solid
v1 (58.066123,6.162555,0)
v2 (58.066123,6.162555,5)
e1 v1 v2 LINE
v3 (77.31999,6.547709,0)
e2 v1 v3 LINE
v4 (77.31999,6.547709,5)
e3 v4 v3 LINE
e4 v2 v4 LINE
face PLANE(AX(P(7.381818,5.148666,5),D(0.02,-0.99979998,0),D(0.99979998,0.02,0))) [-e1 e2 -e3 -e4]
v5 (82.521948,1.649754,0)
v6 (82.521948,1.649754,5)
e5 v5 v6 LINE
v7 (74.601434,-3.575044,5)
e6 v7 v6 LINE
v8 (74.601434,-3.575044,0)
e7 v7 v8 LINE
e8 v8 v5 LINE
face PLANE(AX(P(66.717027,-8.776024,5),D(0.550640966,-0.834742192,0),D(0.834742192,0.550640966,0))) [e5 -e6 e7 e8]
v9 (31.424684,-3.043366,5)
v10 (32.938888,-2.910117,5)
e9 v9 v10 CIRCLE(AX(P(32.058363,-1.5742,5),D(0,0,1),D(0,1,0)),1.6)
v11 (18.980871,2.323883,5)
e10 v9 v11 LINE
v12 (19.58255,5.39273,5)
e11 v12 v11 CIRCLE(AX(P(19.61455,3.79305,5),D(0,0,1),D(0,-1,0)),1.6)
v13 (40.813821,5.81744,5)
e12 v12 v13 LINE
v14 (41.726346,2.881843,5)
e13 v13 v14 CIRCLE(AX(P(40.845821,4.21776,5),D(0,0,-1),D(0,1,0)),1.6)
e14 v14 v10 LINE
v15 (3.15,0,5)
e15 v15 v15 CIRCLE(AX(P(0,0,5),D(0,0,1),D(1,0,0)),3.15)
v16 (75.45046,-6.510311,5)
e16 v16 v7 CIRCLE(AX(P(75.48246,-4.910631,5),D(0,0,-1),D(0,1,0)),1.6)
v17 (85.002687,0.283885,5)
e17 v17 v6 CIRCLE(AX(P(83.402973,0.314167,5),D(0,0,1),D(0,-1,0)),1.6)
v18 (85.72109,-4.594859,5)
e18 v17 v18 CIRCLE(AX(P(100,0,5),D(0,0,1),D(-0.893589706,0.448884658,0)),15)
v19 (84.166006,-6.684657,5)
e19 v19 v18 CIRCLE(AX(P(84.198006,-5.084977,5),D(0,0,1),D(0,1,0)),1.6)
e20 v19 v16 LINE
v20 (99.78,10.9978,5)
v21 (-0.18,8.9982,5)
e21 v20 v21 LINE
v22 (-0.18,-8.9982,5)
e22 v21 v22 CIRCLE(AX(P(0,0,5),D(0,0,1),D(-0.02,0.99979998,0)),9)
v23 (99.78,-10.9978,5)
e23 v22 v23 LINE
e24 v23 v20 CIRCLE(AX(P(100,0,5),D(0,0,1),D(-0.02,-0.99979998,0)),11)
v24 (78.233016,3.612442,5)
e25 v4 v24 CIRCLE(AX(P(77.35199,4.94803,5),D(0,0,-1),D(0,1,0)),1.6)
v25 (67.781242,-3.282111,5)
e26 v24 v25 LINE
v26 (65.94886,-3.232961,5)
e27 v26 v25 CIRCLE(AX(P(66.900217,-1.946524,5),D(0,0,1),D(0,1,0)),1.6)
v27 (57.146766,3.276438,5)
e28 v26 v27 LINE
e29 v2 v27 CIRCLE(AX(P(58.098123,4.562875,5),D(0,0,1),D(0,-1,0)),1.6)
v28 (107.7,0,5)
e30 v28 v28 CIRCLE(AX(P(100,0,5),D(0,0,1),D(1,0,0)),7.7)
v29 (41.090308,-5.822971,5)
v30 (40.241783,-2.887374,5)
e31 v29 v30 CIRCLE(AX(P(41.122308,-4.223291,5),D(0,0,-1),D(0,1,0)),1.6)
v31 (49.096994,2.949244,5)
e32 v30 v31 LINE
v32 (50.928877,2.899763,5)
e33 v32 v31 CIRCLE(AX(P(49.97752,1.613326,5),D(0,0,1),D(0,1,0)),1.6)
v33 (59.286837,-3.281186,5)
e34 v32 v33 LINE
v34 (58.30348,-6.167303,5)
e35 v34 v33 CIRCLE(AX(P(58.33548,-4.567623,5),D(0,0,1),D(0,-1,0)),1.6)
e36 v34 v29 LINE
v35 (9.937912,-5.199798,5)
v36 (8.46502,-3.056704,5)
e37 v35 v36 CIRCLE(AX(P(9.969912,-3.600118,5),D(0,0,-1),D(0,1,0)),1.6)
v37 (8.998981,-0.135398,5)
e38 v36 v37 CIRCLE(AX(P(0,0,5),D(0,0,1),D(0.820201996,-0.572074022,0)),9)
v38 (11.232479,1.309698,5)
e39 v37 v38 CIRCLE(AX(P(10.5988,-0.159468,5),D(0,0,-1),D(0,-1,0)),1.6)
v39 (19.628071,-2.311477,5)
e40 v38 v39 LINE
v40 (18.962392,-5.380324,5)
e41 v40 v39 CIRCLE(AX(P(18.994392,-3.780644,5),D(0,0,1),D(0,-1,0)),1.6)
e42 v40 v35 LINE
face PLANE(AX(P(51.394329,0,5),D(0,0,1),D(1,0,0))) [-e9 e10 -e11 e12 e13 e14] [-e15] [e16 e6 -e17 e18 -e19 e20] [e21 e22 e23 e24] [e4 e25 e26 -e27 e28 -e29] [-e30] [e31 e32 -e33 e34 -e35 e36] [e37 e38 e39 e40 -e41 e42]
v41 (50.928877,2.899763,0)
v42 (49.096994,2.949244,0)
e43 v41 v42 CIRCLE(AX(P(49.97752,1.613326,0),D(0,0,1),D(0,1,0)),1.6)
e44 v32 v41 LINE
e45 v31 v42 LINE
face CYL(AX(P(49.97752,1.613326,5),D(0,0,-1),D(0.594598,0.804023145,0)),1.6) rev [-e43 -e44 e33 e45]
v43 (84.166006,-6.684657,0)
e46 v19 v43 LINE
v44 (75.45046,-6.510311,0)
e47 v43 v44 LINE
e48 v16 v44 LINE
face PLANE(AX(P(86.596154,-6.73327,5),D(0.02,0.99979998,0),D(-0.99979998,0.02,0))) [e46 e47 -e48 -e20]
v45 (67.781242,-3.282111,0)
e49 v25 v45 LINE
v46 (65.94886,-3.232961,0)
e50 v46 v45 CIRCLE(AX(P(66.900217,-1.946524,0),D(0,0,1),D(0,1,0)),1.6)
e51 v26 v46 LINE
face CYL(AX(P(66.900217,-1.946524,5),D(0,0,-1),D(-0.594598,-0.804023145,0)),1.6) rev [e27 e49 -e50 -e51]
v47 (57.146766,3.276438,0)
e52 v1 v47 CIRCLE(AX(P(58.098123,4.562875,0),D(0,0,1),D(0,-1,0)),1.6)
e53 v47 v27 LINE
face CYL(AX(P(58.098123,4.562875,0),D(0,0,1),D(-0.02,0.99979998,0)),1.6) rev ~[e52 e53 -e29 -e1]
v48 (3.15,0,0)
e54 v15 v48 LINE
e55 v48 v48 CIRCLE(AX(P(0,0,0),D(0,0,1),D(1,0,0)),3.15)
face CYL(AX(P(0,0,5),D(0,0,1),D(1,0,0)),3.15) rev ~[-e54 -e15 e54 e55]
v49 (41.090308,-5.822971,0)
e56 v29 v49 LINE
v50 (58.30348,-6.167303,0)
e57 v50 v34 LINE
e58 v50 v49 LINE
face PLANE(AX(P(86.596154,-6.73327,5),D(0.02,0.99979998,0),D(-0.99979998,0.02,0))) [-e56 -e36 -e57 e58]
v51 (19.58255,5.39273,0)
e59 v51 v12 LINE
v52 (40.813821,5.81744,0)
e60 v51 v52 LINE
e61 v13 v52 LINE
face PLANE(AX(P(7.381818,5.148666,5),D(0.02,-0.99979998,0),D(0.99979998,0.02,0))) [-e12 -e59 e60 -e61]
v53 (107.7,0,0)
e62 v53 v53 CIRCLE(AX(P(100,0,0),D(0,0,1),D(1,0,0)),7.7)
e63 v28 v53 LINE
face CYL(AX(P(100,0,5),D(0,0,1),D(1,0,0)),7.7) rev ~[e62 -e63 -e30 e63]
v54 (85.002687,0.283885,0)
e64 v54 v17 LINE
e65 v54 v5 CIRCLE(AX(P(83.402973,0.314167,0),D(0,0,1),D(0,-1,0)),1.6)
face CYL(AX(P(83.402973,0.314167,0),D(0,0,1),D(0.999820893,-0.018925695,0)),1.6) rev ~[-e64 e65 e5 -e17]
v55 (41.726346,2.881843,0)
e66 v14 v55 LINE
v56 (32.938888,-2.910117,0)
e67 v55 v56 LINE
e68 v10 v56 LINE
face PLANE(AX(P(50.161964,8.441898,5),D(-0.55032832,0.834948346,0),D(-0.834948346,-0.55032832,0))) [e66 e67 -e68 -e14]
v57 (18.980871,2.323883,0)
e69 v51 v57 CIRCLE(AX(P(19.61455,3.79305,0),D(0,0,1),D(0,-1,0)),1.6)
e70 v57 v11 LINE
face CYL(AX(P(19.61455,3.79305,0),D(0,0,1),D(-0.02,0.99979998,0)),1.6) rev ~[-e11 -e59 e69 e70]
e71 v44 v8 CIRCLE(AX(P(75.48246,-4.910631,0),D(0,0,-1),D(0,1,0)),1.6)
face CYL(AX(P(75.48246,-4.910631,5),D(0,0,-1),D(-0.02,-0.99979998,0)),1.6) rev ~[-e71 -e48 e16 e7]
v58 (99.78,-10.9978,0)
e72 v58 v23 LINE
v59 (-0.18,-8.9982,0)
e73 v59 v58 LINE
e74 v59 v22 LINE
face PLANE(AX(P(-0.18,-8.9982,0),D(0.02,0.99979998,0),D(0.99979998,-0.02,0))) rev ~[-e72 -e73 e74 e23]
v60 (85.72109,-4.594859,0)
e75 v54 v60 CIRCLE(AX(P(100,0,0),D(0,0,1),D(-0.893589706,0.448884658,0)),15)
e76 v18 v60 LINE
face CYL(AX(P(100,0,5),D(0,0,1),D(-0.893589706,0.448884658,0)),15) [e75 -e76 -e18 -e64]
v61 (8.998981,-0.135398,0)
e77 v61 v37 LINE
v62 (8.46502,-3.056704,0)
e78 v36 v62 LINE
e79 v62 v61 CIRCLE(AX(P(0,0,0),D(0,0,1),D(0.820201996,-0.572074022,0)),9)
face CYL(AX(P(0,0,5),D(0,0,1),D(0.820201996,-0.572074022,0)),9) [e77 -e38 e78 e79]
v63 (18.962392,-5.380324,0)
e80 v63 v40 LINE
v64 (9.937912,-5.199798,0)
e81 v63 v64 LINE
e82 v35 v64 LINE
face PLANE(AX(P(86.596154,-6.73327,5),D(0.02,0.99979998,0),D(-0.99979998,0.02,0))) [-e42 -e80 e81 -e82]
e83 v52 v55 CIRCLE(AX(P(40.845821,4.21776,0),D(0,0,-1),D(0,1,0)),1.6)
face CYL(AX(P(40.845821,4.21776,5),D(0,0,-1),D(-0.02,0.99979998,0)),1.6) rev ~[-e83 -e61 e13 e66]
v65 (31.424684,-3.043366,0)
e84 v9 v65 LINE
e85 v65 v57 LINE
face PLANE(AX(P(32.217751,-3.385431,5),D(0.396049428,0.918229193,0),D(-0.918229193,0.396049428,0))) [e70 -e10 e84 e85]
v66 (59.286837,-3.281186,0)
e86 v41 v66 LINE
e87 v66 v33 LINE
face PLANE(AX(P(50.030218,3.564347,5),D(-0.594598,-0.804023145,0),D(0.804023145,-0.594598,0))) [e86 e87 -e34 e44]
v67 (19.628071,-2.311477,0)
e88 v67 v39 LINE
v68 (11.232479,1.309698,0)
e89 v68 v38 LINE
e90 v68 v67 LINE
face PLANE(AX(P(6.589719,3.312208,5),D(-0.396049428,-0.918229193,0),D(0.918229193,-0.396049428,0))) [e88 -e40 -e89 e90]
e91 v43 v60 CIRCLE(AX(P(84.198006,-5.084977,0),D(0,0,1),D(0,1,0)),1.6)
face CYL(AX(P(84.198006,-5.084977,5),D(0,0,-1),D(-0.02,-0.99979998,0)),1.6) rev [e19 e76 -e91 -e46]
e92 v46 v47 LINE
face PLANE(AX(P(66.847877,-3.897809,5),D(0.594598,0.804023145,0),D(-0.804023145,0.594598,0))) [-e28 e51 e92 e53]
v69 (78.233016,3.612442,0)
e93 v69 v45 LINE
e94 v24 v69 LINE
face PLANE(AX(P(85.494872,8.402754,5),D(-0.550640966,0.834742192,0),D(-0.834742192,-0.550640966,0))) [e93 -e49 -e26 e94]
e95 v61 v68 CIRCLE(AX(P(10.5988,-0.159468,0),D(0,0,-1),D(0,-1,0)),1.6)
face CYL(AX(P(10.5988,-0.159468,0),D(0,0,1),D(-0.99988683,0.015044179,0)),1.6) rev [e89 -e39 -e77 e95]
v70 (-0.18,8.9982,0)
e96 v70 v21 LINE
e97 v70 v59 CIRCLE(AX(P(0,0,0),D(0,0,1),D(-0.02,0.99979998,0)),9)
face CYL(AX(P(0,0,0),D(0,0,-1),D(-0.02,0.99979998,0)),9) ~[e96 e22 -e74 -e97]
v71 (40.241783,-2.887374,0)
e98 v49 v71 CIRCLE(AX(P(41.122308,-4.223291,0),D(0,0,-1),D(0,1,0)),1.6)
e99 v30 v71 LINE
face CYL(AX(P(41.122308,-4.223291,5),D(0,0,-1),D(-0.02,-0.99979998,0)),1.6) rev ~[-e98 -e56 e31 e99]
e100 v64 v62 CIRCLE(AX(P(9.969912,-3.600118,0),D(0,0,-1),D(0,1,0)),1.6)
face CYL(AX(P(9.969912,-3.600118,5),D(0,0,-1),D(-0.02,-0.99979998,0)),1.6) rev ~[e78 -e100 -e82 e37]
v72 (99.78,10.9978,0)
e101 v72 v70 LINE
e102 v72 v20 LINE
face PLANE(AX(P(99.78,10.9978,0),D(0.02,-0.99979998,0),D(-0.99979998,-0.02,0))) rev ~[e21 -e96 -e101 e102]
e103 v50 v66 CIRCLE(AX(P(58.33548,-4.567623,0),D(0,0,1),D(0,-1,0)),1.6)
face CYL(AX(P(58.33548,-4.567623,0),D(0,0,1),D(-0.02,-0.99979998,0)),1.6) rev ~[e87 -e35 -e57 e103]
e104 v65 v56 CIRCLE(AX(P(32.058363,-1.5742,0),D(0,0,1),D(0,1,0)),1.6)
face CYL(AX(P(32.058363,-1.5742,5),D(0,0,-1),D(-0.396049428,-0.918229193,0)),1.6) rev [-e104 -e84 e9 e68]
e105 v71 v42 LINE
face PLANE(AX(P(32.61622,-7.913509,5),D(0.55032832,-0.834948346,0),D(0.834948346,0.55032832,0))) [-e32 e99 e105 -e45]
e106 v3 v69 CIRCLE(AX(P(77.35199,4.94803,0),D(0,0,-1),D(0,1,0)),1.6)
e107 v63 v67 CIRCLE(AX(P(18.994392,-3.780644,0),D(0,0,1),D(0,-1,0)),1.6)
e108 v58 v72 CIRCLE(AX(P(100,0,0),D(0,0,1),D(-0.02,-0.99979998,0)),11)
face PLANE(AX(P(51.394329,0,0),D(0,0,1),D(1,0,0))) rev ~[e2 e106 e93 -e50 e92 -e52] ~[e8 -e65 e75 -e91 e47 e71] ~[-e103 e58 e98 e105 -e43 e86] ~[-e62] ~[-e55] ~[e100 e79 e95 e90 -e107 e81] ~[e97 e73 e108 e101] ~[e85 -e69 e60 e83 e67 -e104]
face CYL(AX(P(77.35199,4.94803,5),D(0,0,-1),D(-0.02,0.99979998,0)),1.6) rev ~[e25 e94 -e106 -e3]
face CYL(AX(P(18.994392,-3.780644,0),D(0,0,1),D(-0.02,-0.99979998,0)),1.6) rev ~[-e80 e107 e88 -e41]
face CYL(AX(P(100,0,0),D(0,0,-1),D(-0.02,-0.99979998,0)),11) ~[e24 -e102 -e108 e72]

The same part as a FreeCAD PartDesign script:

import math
import FreeCAD as App
import Part
import Sketcher
from FreeCAD import Vector
Q = App.Units.Quantity


def edges_at(feature, points):
    """Names of the edges that pass closest to the given points."""
    edges = feature.Shape.Edges
    near = lambda p: min(range(len(edges)), key=lambda i: edges[i].distToShape(Part.Vertex(*p))[0])
    return sorted({f"Edge{near(p) + 1}" for p in points})

doc = App.newDocument("Part")
body = doc.addObject("PartDesign::Body", "Body")

# Sketch on XY plane
sketch1 = body.newObject("Sketcher::SketchObject", "Sketch")
sketch1.AttachmentSupport = (doc.getObject("XY_Plane"), [""])
sketch1.MapMode = "FlatFace"
sketch1.addGeometry([
    Part.LineSegment(Vector(-0.18, -8.9982, 0), Vector(99.78, -10.9978, 0)),
    Part.ArcOfCircle(Part.Circle(Vector(100, 0, 0), Vector(0, 0, 1), 11), math.radians(-91.145992), math.radians(91.145992)),
    Part.LineSegment(Vector(99.78, 10.9978, 0), Vector(-0.18, 8.9982, 0)),
    Part.ArcOfCircle(Part.Circle(Vector(0, 0, 0), Vector(0, 0, 1), 9), math.radians(91.145992), math.radians(268.854008)),
], False)
sketch1.addConstraint([
    Sketcher.Constraint("Tangent", 0, 2, 1, 1),
    Sketcher.Constraint("Tangent", 1, 2, 2, 1),
    Sketcher.Constraint("Tangent", 2, 2, 3, 1),
    Sketcher.Constraint("Tangent", 3, 2, 0, 1),
    Sketcher.Constraint("Coincident", 3, 3, -1, 1),
    Sketcher.Constraint("PointOnObject", 1, 3, -1),
    Sketcher.Constraint("Radius", 1, Q("11 mm")),
    Sketcher.Constraint("Radius", 3, Q("9 mm")),
    Sketcher.Constraint("DistanceX", -1, 1, 1, 3, Q("100 mm")),
])
pad1 = body.newObject("PartDesign::Pad", "Pad")
pad1.Profile = sketch1
pad1.Length = 5

# Sketch on XY plane
sketch2 = body.newObject("Sketcher::SketchObject", "Sketch001")
sketch2.AttachmentSupport = (doc.getObject("XY_Plane"), [""])
sketch2.MapMode = "FlatFace"
sketch2.AttachmentOffset = App.Placement(Vector(0, 0, 5), App.Rotation())
sketch2.addGeometry(Part.Circle(Vector(0, 0, 0), Vector(0, 0, 1), 3.15), False)
sketch2.addConstraint([
    Sketcher.Constraint("Coincident", 0, 3, -1, 1),
    Sketcher.Constraint("Diameter", 0, Q("6.3 mm")),
])
pocket1 = body.newObject("PartDesign::Pocket", "Pocket")
pocket1.Profile = sketch2
pocket1.Type = "ThroughAll"

# Sketch on XY plane
sketch3 = body.newObject("Sketcher::SketchObject", "Sketch002")
sketch3.AttachmentSupport = (doc.getObject("XY_Plane"), [""])
sketch3.MapMode = "FlatFace"
sketch3.AttachmentOffset = App.Placement(Vector(0, 0, 5), App.Rotation())
sketch3.addGeometry(Part.Circle(Vector(100, 0, 0), Vector(0, 0, 1), 7.7), False)
sketch3.addConstraint([
    Sketcher.Constraint("PointOnObject", 0, 3, -1),
    Sketcher.Constraint("Diameter", 0, Q("15.4 mm")),
    Sketcher.Constraint("DistanceX", -1, 1, 0, 3, Q("100 mm")),
])
pocket2 = body.newObject("PartDesign::Pocket", "Pocket001")
pocket2.Profile = sketch3
pocket2.Type = "ThroughAll"

# Sketch on XY plane
sketch4 = body.newObject("Sketcher::SketchObject", "Sketch003")
sketch4.AttachmentSupport = (doc.getObject("XY_Plane"), [""])
sketch4.MapMode = "FlatFace"
sketch4.AttachmentOffset = App.Placement(Vector(0, 0, 5), App.Rotation())
sketch4.addGeometry([
    Part.LineSegment(Vector(86.596154, 6.73327, 0), Vector(7.381818, 5.148666, 0)),
    Part.ArcOfCircle(Part.Circle(Vector(0, 0, 0), Vector(0, 0, 1), 9), math.radians(-34.894981), math.radians(34.894981)),
    Part.LineSegment(Vector(7.381818, -5.148666, 0), Vector(86.596154, -6.73327, 0)),
    Part.ArcOfCircle(Part.Circle(Vector(100, 0, 0), Vector(0, 0, 1), 15), math.radians(153.327853), math.radians(206.672147)),
], False)
sketch4.addConstraint([
    Sketcher.Constraint("Coincident", 0, 2, 1, 2),
    Sketcher.Constraint("Coincident", 1, 1, 2, 1),
    Sketcher.Constraint("Coincident", 2, 2, 3, 2),
    Sketcher.Constraint("Coincident", 3, 1, 0, 1),
    Sketcher.Constraint("Coincident", 1, 3, -1, 1),
    Sketcher.Constraint("Symmetric", 2, 2, 3, 1, -1),
    Sketcher.Constraint("Vertical", 0, 2, 1, 1),
    Sketcher.Constraint("Radius", 1, Q("9 mm")),
    Sketcher.Constraint("Radius", 3, Q("15 mm")),
    Sketcher.Constraint("DistanceX", -1, 1, 3, 3, Q("100 mm")),
    Sketcher.Constraint("DistanceY", 2, 2, -1, 1, Q("6.73327 mm")),
    Sketcher.Constraint("Distance", 0, Q("79.230184 mm")),
])
pocket3 = body.newObject("PartDesign::Pocket", "Pocket002")
pocket3.Profile = sketch4
pocket3.Type = "ThroughAll"

# Sketch on XY plane
sketch5 = body.newObject("Sketcher::SketchObject", "Sketch004")
sketch5.AttachmentSupport = (doc.getObject("XY_Plane"), [""])
sketch5.MapMode = "FlatFace"
sketch5.AttachmentOffset = App.Placement(Vector(0, 0, 5), App.Rotation())
sketch5.addGeometry([
    Part.LineSegment(Vector(6.589719, 3.312208, 0), Vector(32.61622, -7.913509, 0)),  # 0
    Part.LineSegment(Vector(32.61622, -7.913509, 0), Vector(50.030218, 3.564347, 0)),  # 1
    Part.LineSegment(Vector(50.030218, 3.564347, 0), Vector(66.717027, -8.776024, 0)),  # 2
    Part.LineSegment(Vector(66.717027, -8.776024, 0), Vector(87.697436, 5.063785, 0)),  # 3
    Part.LineSegment(Vector(87.697436, 5.063785, 0), Vector(85.494872, 8.402754, 0)),  # 4
    Part.LineSegment(Vector(85.494872, 8.402754, 0), Vector(66.847877, -3.897809, 0)),  # 5
    Part.LineSegment(Vector(66.847877, -3.897809, 0), Vector(50.161964, 8.441898, 0)),  # 6
    Part.LineSegment(Vector(50.161964, 8.441898, 0), Vector(32.217751, -3.385431, 0)),  # 7
    Part.LineSegment(Vector(32.217751, -3.385431, 0), Vector(8.173917, 6.985125, 0)),  # 8
    Part.LineSegment(Vector(8.173917, 6.985125, 0), Vector(6.589719, 3.312208, 0)),  # 9
], False)
sketch5.addConstraint([
    Sketcher.Constraint("Coincident", 0, 2, 1, 1),
    Sketcher.Constraint("Coincident", 1, 2, 2, 1),
    Sketcher.Constraint("Coincident", 2, 2, 3, 1),
    Sketcher.Constraint("Coincident", 3, 2, 4, 1),
    Sketcher.Constraint("Coincident", 4, 2, 5, 1),
    Sketcher.Constraint("Coincident", 5, 2, 6, 1),
    Sketcher.Constraint("Coincident", 6, 2, 7, 1),
    Sketcher.Constraint("Coincident", 7, 2, 8, 1),
    Sketcher.Constraint("Coincident", 8, 2, 9, 1),
    Sketcher.Constraint("Coincident", 9, 2, 0, 1),
    Sketcher.Constraint("Perpendicular", 3, 4),
    Sketcher.Constraint("Perpendicular", 4, 5),
    Sketcher.Constraint("Parallel", 2, 6),
    Sketcher.Constraint("Parallel", 1, 7),
    Sketcher.Constraint("Parallel", 0, 8),
    Sketcher.Constraint("Perpendicular", 8, 9),
    Sketcher.Constraint("Equal", 4, 9),
    Sketcher.Constraint("Distance", 4, Q("4 mm")),
    Sketcher.Constraint("Distance", 3, Q("25.133998 mm")),
    Sketcher.Constraint("DistanceX", 0, 2, 1, 2, Q("17.413998 mm")),
    Sketcher.Constraint("DistanceY", -1, 1, 6, 2, Q("8.441898 mm")),
    Sketcher.Constraint("DistanceY", 0, 2, 5, 2, Q("4.015699 mm")),
    Sketcher.Constraint("DistanceX", 8, 2, 1, 2, Q("41.856301 mm")),
    Sketcher.Constraint("DistanceX", 9, 2, 0, 2, Q("26.0265 mm")),
    Sketcher.Constraint("Distance", 1, Q("20.856378 mm")),
    Sketcher.Constraint("Distance", 2, Q("20.754141 mm")),
    Sketcher.Constraint("Distance", 5, Q("22.338628 mm")),
    Sketcher.Constraint("DistanceX", -1, 1, 0, 2, Q("32.61622 mm")),
    Sketcher.Constraint("DistanceY", 0, 2, -1, 1, Q("7.913509 mm")),
    Sketcher.Constraint("DistanceX", -1, 1, 7, 2, Q("32.217751 mm")),
])
pad2 = body.newObject("PartDesign::Pad", "Pad001")
pad2.Profile = sketch5
pad2.Length = 5
pad2.Reversed = True
doc.recompute()

fillet = body.newObject("PartDesign::Fillet", "Fillet")
fillet.Base = (pad2, edges_at(pad2, [
    (7.382, -5.149, 2.5),
    (86.596, -6.733, 2.5),
    (27.122, -5.544, 2.5),
    (35.944, -5.72, 2.5),
    (63.325, -6.268, 2.5),
    (70.308, -6.407, 2.5),
    (82.85, 6.658, 2.5),
    (53.371, 6.069, 2.5),
    (46.348, 5.928, 2.5),
    (12.208, 5.245, 2.5),
    (32.218, -3.385, 2.5),
    (66.848, -3.898, 2.5),
    (85.431, 3.568, 2.5),
    (50.03, 3.564, 2.5),
    (8.67, 2.415, 2.5),
]))
fillet.Radius = 1.6

doc.recompute()
